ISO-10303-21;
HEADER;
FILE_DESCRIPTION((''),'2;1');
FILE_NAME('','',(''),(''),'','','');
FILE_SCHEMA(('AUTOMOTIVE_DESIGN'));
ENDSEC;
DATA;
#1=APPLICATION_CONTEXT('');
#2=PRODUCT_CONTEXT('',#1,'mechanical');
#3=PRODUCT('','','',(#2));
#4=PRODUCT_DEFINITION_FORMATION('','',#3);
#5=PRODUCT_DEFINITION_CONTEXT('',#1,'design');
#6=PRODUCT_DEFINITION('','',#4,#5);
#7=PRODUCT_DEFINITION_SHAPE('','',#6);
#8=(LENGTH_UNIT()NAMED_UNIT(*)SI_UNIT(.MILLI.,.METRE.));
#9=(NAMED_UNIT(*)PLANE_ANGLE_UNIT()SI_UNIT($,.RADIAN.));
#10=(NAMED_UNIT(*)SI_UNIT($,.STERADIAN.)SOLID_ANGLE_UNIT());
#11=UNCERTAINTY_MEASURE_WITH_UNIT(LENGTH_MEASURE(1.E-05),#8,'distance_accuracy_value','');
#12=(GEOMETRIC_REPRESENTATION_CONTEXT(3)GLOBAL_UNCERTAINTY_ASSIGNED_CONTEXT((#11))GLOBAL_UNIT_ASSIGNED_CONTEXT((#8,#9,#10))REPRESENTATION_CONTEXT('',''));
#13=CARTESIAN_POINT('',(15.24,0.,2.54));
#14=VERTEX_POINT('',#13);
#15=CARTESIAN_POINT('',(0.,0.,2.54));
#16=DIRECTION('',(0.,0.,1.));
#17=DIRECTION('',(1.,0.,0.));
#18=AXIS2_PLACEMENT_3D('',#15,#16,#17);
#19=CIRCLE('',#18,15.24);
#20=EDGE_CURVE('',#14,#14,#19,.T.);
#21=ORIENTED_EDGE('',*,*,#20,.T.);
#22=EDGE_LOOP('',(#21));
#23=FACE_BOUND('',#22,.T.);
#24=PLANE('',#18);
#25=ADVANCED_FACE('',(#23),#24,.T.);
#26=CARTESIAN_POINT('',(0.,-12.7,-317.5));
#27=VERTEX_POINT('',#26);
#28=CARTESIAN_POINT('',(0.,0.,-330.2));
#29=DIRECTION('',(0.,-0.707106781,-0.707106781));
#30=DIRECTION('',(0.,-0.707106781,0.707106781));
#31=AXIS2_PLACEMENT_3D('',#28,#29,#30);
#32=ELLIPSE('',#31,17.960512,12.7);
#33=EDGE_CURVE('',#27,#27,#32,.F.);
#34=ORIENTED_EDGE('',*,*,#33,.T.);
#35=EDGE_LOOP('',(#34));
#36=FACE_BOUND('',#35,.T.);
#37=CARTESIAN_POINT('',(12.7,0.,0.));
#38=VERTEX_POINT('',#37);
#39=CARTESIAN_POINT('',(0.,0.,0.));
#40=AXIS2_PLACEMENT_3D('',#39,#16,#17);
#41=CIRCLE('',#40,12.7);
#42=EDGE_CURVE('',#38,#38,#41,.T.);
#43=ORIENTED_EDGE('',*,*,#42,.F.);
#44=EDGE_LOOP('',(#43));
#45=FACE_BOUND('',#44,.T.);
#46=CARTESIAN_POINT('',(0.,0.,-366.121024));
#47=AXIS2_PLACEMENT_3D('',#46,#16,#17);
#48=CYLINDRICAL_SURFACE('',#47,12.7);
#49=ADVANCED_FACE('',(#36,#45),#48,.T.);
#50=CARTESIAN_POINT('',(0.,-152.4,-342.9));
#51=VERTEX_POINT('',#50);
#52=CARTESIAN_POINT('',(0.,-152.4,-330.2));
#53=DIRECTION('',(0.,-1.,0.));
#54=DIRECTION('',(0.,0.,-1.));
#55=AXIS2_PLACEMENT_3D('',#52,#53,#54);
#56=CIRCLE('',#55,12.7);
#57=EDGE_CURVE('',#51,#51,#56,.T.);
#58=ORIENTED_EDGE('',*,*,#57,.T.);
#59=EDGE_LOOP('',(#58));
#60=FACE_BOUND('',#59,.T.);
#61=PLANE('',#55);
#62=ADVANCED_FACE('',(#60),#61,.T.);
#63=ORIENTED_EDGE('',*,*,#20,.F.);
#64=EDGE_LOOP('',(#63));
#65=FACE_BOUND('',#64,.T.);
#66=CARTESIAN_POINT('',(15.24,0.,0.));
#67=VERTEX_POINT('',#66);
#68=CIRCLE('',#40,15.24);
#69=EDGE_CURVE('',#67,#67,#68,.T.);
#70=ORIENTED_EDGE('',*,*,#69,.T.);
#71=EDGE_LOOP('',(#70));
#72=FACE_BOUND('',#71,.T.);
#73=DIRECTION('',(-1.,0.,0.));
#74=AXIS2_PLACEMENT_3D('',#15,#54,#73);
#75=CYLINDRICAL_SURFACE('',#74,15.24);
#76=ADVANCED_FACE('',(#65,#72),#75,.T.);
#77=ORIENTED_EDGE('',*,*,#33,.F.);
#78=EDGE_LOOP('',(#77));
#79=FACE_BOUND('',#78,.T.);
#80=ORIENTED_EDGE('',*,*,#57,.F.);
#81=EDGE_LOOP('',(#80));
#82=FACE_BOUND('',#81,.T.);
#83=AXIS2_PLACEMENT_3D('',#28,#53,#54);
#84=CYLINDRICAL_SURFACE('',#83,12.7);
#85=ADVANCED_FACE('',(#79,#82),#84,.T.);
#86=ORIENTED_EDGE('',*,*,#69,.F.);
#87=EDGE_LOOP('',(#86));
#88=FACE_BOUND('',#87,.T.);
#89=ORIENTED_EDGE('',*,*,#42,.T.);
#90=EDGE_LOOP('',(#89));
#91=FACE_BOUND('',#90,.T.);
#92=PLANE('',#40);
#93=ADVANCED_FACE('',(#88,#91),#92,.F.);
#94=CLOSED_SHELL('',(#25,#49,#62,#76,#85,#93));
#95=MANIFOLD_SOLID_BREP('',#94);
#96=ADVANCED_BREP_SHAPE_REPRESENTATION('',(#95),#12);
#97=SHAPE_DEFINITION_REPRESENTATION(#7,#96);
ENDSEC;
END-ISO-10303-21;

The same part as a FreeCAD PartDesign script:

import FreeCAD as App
import Part
import Sketcher
Q = App.Units.Quantity

doc = App.newDocument("Part")
body = doc.addObject("PartDesign::Body", "Body")

# Sketch on XY plane
sketch1 = body.newObject("Sketcher::SketchObject", "Sketch")
sketch1.AttachmentSupport = (doc.getObject("XY_Plane"), [""])
sketch1.MapMode = "FlatFace"
sketch1.addGeometry(Part.Circle(App.Vector(0, 0, 0), App.Vector(0, 0, 1), 13), False)
sketch1.addConstraint([
    Sketcher.Constraint("Coincident", 0, 3, -1, 1),
    Sketcher.Constraint("Diameter", 0, Q("1 in")),
])

# Sketch on YZ plane
sketch2 = body.newObject("Sketcher::SketchObject", "Sketch001")
sketch2.AttachmentSupport = (doc.getObject("YZ_Plane"), [""])
sketch2.MapMode = "FlatFace"
sketch2.addGeometry([
    Part.LineSegment(App.Vector(0, 0, 0), App.Vector(0, -330, 0)),
    Part.LineSegment(App.Vector(0, -330, 0), App.Vector(-152, -330, 0)),
], False)
sketch2.addConstraint([
    Sketcher.Constraint("Coincident", 0, 2, 1, 1),
    Sketcher.Constraint("Vertical", 0),
    Sketcher.Constraint("Horizontal", 1),
    Sketcher.Constraint("Coincident", 0, 1, -1, 1),
    Sketcher.Constraint("DistanceX", 1, 2, 1, 1, Q("6 in")),
    Sketcher.Constraint("DistanceY", 0, 2, 0, 1, Q("13 in")),
])
doc.recompute()

additivepipe = body.newObject("PartDesign::AdditivePipe", "AdditivePipe")
additivepipe.Profile = sketch1
additivepipe.Spine = (sketch2, ["Edge1", "Edge2"])
additivepipe.Transition = "Right corner"

# Sketch on XY plane
sketch3 = body.newObject("Sketcher::SketchObject", "Sketch002")
sketch3.AttachmentSupport = (doc.getObject("XY_Plane"), [""])
sketch3.MapMode = "FlatFace"
sketch3.addGeometry(Part.Circle(App.Vector(0, 0, 0), App.Vector(0, 0, 1), 15), False)
sketch3.addConstraint([
    Sketcher.Constraint("Coincident", 0, 3, -1, 1),
    Sketcher.Constraint("Diameter", 0, Q("1.2 in")),
])
pad1 = body.newObject("PartDesign::Pad", "Pad")
pad1.Profile = sketch3
pad1.Length = Q("0.1 in")

doc.recompute()
